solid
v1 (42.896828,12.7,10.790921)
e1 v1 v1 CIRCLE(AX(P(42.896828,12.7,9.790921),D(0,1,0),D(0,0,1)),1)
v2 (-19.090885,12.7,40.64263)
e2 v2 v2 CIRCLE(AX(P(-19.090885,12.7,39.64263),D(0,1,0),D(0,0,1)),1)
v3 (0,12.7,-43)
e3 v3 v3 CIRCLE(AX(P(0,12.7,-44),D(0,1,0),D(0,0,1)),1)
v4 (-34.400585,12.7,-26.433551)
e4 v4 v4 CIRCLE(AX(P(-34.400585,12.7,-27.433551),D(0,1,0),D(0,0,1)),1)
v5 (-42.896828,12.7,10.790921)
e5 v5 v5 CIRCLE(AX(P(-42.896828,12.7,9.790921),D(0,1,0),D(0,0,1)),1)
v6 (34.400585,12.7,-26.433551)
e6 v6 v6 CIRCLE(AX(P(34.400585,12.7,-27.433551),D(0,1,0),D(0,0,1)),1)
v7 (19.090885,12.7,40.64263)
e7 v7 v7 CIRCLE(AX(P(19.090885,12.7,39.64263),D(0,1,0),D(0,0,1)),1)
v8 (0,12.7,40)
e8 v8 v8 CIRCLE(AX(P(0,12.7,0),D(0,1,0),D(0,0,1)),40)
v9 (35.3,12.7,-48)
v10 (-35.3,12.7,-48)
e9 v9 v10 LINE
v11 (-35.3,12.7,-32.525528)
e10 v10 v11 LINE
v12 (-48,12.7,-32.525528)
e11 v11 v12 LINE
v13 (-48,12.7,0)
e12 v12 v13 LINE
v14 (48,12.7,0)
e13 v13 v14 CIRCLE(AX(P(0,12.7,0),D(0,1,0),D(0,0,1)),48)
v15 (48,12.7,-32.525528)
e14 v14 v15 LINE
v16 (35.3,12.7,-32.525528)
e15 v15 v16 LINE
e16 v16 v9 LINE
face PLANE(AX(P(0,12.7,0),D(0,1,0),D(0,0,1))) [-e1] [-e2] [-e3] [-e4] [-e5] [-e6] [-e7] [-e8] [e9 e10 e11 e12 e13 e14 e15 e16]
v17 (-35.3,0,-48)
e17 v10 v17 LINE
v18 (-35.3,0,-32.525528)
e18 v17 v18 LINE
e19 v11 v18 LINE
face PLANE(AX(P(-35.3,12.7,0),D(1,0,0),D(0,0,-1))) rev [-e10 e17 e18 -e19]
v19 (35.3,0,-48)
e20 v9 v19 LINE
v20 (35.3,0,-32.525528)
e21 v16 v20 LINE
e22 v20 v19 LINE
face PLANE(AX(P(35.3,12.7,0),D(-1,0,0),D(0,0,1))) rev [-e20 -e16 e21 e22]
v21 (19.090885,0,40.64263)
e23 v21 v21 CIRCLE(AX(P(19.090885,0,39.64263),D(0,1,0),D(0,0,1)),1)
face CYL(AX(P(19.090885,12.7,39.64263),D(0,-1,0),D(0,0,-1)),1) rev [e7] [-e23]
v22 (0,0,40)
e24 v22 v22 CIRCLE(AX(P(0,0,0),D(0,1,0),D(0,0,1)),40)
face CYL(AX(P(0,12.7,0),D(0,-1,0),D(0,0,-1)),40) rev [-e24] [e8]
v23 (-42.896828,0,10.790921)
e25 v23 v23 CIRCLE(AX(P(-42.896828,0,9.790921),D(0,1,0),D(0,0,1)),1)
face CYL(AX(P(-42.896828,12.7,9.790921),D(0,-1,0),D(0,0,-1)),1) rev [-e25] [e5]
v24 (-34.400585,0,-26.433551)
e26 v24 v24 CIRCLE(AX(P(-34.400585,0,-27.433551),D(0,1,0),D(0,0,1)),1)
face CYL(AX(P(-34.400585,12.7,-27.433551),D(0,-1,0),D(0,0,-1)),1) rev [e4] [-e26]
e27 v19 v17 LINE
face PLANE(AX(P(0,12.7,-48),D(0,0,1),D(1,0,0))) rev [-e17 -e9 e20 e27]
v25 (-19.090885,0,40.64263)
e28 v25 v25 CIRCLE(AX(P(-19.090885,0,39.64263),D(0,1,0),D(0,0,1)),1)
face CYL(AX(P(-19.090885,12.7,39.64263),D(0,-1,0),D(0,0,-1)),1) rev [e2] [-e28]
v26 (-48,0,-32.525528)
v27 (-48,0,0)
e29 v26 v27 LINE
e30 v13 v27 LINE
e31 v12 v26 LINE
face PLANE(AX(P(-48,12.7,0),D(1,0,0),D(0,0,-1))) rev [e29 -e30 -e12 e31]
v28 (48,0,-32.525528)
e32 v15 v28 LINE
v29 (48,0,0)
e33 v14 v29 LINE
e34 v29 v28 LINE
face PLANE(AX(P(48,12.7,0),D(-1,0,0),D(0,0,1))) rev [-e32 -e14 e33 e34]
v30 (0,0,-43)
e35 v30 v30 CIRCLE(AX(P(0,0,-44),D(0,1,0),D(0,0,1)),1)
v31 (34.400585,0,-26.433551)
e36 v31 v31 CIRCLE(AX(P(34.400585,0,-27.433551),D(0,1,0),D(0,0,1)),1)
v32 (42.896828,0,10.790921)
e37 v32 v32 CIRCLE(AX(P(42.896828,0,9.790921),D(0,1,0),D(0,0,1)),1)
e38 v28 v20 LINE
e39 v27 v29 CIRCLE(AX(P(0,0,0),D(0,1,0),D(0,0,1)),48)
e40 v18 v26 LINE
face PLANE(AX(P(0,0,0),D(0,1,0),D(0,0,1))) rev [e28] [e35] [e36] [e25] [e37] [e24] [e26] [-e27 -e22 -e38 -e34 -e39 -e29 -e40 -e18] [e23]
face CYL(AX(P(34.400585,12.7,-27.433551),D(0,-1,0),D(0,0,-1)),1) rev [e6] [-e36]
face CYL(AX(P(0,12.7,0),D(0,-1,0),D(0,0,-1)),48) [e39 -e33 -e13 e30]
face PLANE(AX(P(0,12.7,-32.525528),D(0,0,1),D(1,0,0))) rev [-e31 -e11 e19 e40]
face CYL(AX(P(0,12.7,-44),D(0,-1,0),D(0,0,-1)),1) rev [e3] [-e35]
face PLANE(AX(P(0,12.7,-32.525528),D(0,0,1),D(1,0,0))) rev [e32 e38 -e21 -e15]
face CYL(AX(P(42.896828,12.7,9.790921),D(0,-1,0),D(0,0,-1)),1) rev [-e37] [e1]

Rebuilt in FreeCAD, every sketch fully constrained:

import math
import FreeCAD as App
import Part
import Sketcher
from FreeCAD import Vector

doc = App.newDocument("Part")
body = doc.addObject("PartDesign::Body", "Body")

# Sketch on XZ plane
sketch1 = body.newObject("Sketcher::SketchObject", "Sketch")
sketch1.AttachmentSupport = (doc.getObject("XZ_Plane"), [""])
sketch1.MapMode = "FlatFace"
sketch1.addGeometry(Part.LineSegment(Vector(35.3, -48, 0), Vector(-35.3, -48, 0)), False)
sketch1.addGeometry(Part.LineSegment(Vector(-35.3, -48, 0), Vector(-35.3, -32.5, 0)), False)
sketch1.addGeometry(Part.LineSegment(Vector(-35.3, -32.5, 0), Vector(-48, -32.5, 0)), False)
sketch1.addGeometry(Part.LineSegment(Vector(-48, -32.5, 0), Vector(-48, 0, 0)), False)
sketch1.addGeometry(Part.ArcOfCircle(Part.Circle(Vector(0, 0, 0), Vector(0, 0, 1), 48), math.radians(0), math.radians(180)), False)
sketch1.addGeometry(Part.LineSegment(Vector(48, 0, 0), Vector(48, -32.5, 0)), False)
sketch1.addGeometry(Part.LineSegment(Vector(48, -32.5, 0), Vector(35.3, -32.5, 0)), False)
sketch1.addGeometry(Part.LineSegment(Vector(35.3, -32.5, 0), Vector(35.3, -48, 0)), False)
sketch1.addGeometry(Part.Circle(Vector(0, -44, 0), Vector(0, 0, 1), 1), False)
sketch1.addGeometry(Part.Circle(Vector(0, 0, 0), Vector(0, 0, 1), 40), False)
sketch1.addGeometry(Part.Circle(Vector(-34.4, -27.4, 0), Vector(0, 0, 1), 1), False)
sketch1.addGeometry(Part.Circle(Vector(34.4, -27.4, 0), Vector(0, 0, 1), 1), False)
sketch1.addGeometry(Part.Circle(Vector(-42.9, 9.8, 0), Vector(0, 0, 1), 1), False)
sketch1.addGeometry(Part.Circle(Vector(42.9, 9.8, 0), Vector(0, 0, 1), 1), False)
sketch1.addGeometry(Part.Circle(Vector(-19.1, 39.6, 0), Vector(0, 0, 1), 1), False)
sketch1.addGeometry(Part.Circle(Vector(19.1, 39.6, 0), Vector(0, 0, 1), 1), False)
sketch1.addConstraint(Sketcher.Constraint("Coincident", 0, 2, 1, 1))
sketch1.addConstraint(Sketcher.Constraint("Coincident", 1, 2, 2, 1))
sketch1.addConstraint(Sketcher.Constraint("Coincident", 2, 2, 3, 1))
sketch1.addConstraint(Sketcher.Constraint("Tangent", 3, 2, 4, 2))
sketch1.addConstraint(Sketcher.Constraint("Tangent", 4, 1, 5, 1))
sketch1.addConstraint(Sketcher.Constraint("Coincident", 5, 2, 6, 1))
sketch1.addConstraint(Sketcher.Constraint("Coincident", 6, 2, 7, 1))
sketch1.addConstraint(Sketcher.Constraint("Coincident", 7, 2, 0, 1))
sketch1.addConstraint(Sketcher.Constraint("Horizontal", 0))
sketch1.addConstraint(Sketcher.Constraint("Vertical", 1))
sketch1.addConstraint(Sketcher.Constraint("Horizontal", 2))
sketch1.addConstraint(Sketcher.Constraint("Vertical", 3))
sketch1.addConstraint(Sketcher.Constraint("Vertical", 5))
sketch1.addConstraint(Sketcher.Constraint("Horizontal", 6))
sketch1.addConstraint(Sketcher.Constraint("Vertical", 7))
sketch1.addConstraint(Sketcher.Constraint("Coincident", 4, 3, -1, 1))
sketch1.addConstraint(Sketcher.Constraint("Coincident", 9, 3, -1, 1))
sketch1.addConstraint(Sketcher.Constraint("Equal", 8, 10))
sketch1.addConstraint(Sketcher.Constraint("Equal", 10, 11))
sketch1.addConstraint(Sketcher.Constraint("Equal", 11, 12))
sketch1.addConstraint(Sketcher.Constraint("Equal", 12, 13))
sketch1.addConstraint(Sketcher.Constraint("Equal", 13, 14))
sketch1.addConstraint(Sketcher.Constraint("Equal", 14, 15))
sketch1.addConstraint(Sketcher.Constraint("Symmetric", 10, 3, 11, 3, -2))
sketch1.addConstraint(Sketcher.Constraint("Symmetric", 12, 3, 13, 3, -2))
sketch1.addConstraint(Sketcher.Constraint("Symmetric", 14, 3, 15, 3, -2))
sketch1.addConstraint(Sketcher.Constraint("Symmetric", 1, 2, 6, 2, -2))
sketch1.addConstraint(Sketcher.Constraint("PointOnObject", 8, 3, -2))
sketch1.addConstraint(Sketcher.Constraint("Diameter", 8, 2.0))
sketch1.addConstraint(Sketcher.Constraint("Diameter", 9, 80.0))
sketch1.addConstraint(Sketcher.Constraint("Radius", 4, 48.0))
sketch1.addConstraint(Sketcher.Constraint("DistanceX", 0, 2, 0, 1, 70.6))
sketch1.addConstraint(Sketcher.Constraint("DistanceY", 8, 3, -1, 1, 44.0))
sketch1.addConstraint(Sketcher.Constraint("DistanceY", 0, 2, -1, 1, 48.0))
sketch1.addConstraint(Sketcher.Constraint("DistanceY", 1, 1, 1, 2, 15.474472))
sketch1.addConstraint(Sketcher.Constraint("DistanceX", 10, 3, 14, 3, 15.309701))
sketch1.addConstraint(Sketcher.Constraint("DistanceY", 10, 3, -1, 1, 27.433551))
sketch1.addConstraint(Sketcher.Constraint("DistanceX", 12, 3, -1, 1, 42.896828))
sketch1.addConstraint(Sketcher.Constraint("DistanceY", -1, 1, 12, 3, 9.790921))
sketch1.addConstraint(Sketcher.Constraint("DistanceY", -1, 1, 14, 3, 39.64263))
sketch1.addConstraint(Sketcher.Constraint("DistanceX", 10, 3, 11, 3, 68.80117))
pad1 = body.newObject("PartDesign::Pad", "Pad")
pad1.Profile = sketch1
pad1.Length = 12.7
pad1.Reversed = True

doc.recompute()
